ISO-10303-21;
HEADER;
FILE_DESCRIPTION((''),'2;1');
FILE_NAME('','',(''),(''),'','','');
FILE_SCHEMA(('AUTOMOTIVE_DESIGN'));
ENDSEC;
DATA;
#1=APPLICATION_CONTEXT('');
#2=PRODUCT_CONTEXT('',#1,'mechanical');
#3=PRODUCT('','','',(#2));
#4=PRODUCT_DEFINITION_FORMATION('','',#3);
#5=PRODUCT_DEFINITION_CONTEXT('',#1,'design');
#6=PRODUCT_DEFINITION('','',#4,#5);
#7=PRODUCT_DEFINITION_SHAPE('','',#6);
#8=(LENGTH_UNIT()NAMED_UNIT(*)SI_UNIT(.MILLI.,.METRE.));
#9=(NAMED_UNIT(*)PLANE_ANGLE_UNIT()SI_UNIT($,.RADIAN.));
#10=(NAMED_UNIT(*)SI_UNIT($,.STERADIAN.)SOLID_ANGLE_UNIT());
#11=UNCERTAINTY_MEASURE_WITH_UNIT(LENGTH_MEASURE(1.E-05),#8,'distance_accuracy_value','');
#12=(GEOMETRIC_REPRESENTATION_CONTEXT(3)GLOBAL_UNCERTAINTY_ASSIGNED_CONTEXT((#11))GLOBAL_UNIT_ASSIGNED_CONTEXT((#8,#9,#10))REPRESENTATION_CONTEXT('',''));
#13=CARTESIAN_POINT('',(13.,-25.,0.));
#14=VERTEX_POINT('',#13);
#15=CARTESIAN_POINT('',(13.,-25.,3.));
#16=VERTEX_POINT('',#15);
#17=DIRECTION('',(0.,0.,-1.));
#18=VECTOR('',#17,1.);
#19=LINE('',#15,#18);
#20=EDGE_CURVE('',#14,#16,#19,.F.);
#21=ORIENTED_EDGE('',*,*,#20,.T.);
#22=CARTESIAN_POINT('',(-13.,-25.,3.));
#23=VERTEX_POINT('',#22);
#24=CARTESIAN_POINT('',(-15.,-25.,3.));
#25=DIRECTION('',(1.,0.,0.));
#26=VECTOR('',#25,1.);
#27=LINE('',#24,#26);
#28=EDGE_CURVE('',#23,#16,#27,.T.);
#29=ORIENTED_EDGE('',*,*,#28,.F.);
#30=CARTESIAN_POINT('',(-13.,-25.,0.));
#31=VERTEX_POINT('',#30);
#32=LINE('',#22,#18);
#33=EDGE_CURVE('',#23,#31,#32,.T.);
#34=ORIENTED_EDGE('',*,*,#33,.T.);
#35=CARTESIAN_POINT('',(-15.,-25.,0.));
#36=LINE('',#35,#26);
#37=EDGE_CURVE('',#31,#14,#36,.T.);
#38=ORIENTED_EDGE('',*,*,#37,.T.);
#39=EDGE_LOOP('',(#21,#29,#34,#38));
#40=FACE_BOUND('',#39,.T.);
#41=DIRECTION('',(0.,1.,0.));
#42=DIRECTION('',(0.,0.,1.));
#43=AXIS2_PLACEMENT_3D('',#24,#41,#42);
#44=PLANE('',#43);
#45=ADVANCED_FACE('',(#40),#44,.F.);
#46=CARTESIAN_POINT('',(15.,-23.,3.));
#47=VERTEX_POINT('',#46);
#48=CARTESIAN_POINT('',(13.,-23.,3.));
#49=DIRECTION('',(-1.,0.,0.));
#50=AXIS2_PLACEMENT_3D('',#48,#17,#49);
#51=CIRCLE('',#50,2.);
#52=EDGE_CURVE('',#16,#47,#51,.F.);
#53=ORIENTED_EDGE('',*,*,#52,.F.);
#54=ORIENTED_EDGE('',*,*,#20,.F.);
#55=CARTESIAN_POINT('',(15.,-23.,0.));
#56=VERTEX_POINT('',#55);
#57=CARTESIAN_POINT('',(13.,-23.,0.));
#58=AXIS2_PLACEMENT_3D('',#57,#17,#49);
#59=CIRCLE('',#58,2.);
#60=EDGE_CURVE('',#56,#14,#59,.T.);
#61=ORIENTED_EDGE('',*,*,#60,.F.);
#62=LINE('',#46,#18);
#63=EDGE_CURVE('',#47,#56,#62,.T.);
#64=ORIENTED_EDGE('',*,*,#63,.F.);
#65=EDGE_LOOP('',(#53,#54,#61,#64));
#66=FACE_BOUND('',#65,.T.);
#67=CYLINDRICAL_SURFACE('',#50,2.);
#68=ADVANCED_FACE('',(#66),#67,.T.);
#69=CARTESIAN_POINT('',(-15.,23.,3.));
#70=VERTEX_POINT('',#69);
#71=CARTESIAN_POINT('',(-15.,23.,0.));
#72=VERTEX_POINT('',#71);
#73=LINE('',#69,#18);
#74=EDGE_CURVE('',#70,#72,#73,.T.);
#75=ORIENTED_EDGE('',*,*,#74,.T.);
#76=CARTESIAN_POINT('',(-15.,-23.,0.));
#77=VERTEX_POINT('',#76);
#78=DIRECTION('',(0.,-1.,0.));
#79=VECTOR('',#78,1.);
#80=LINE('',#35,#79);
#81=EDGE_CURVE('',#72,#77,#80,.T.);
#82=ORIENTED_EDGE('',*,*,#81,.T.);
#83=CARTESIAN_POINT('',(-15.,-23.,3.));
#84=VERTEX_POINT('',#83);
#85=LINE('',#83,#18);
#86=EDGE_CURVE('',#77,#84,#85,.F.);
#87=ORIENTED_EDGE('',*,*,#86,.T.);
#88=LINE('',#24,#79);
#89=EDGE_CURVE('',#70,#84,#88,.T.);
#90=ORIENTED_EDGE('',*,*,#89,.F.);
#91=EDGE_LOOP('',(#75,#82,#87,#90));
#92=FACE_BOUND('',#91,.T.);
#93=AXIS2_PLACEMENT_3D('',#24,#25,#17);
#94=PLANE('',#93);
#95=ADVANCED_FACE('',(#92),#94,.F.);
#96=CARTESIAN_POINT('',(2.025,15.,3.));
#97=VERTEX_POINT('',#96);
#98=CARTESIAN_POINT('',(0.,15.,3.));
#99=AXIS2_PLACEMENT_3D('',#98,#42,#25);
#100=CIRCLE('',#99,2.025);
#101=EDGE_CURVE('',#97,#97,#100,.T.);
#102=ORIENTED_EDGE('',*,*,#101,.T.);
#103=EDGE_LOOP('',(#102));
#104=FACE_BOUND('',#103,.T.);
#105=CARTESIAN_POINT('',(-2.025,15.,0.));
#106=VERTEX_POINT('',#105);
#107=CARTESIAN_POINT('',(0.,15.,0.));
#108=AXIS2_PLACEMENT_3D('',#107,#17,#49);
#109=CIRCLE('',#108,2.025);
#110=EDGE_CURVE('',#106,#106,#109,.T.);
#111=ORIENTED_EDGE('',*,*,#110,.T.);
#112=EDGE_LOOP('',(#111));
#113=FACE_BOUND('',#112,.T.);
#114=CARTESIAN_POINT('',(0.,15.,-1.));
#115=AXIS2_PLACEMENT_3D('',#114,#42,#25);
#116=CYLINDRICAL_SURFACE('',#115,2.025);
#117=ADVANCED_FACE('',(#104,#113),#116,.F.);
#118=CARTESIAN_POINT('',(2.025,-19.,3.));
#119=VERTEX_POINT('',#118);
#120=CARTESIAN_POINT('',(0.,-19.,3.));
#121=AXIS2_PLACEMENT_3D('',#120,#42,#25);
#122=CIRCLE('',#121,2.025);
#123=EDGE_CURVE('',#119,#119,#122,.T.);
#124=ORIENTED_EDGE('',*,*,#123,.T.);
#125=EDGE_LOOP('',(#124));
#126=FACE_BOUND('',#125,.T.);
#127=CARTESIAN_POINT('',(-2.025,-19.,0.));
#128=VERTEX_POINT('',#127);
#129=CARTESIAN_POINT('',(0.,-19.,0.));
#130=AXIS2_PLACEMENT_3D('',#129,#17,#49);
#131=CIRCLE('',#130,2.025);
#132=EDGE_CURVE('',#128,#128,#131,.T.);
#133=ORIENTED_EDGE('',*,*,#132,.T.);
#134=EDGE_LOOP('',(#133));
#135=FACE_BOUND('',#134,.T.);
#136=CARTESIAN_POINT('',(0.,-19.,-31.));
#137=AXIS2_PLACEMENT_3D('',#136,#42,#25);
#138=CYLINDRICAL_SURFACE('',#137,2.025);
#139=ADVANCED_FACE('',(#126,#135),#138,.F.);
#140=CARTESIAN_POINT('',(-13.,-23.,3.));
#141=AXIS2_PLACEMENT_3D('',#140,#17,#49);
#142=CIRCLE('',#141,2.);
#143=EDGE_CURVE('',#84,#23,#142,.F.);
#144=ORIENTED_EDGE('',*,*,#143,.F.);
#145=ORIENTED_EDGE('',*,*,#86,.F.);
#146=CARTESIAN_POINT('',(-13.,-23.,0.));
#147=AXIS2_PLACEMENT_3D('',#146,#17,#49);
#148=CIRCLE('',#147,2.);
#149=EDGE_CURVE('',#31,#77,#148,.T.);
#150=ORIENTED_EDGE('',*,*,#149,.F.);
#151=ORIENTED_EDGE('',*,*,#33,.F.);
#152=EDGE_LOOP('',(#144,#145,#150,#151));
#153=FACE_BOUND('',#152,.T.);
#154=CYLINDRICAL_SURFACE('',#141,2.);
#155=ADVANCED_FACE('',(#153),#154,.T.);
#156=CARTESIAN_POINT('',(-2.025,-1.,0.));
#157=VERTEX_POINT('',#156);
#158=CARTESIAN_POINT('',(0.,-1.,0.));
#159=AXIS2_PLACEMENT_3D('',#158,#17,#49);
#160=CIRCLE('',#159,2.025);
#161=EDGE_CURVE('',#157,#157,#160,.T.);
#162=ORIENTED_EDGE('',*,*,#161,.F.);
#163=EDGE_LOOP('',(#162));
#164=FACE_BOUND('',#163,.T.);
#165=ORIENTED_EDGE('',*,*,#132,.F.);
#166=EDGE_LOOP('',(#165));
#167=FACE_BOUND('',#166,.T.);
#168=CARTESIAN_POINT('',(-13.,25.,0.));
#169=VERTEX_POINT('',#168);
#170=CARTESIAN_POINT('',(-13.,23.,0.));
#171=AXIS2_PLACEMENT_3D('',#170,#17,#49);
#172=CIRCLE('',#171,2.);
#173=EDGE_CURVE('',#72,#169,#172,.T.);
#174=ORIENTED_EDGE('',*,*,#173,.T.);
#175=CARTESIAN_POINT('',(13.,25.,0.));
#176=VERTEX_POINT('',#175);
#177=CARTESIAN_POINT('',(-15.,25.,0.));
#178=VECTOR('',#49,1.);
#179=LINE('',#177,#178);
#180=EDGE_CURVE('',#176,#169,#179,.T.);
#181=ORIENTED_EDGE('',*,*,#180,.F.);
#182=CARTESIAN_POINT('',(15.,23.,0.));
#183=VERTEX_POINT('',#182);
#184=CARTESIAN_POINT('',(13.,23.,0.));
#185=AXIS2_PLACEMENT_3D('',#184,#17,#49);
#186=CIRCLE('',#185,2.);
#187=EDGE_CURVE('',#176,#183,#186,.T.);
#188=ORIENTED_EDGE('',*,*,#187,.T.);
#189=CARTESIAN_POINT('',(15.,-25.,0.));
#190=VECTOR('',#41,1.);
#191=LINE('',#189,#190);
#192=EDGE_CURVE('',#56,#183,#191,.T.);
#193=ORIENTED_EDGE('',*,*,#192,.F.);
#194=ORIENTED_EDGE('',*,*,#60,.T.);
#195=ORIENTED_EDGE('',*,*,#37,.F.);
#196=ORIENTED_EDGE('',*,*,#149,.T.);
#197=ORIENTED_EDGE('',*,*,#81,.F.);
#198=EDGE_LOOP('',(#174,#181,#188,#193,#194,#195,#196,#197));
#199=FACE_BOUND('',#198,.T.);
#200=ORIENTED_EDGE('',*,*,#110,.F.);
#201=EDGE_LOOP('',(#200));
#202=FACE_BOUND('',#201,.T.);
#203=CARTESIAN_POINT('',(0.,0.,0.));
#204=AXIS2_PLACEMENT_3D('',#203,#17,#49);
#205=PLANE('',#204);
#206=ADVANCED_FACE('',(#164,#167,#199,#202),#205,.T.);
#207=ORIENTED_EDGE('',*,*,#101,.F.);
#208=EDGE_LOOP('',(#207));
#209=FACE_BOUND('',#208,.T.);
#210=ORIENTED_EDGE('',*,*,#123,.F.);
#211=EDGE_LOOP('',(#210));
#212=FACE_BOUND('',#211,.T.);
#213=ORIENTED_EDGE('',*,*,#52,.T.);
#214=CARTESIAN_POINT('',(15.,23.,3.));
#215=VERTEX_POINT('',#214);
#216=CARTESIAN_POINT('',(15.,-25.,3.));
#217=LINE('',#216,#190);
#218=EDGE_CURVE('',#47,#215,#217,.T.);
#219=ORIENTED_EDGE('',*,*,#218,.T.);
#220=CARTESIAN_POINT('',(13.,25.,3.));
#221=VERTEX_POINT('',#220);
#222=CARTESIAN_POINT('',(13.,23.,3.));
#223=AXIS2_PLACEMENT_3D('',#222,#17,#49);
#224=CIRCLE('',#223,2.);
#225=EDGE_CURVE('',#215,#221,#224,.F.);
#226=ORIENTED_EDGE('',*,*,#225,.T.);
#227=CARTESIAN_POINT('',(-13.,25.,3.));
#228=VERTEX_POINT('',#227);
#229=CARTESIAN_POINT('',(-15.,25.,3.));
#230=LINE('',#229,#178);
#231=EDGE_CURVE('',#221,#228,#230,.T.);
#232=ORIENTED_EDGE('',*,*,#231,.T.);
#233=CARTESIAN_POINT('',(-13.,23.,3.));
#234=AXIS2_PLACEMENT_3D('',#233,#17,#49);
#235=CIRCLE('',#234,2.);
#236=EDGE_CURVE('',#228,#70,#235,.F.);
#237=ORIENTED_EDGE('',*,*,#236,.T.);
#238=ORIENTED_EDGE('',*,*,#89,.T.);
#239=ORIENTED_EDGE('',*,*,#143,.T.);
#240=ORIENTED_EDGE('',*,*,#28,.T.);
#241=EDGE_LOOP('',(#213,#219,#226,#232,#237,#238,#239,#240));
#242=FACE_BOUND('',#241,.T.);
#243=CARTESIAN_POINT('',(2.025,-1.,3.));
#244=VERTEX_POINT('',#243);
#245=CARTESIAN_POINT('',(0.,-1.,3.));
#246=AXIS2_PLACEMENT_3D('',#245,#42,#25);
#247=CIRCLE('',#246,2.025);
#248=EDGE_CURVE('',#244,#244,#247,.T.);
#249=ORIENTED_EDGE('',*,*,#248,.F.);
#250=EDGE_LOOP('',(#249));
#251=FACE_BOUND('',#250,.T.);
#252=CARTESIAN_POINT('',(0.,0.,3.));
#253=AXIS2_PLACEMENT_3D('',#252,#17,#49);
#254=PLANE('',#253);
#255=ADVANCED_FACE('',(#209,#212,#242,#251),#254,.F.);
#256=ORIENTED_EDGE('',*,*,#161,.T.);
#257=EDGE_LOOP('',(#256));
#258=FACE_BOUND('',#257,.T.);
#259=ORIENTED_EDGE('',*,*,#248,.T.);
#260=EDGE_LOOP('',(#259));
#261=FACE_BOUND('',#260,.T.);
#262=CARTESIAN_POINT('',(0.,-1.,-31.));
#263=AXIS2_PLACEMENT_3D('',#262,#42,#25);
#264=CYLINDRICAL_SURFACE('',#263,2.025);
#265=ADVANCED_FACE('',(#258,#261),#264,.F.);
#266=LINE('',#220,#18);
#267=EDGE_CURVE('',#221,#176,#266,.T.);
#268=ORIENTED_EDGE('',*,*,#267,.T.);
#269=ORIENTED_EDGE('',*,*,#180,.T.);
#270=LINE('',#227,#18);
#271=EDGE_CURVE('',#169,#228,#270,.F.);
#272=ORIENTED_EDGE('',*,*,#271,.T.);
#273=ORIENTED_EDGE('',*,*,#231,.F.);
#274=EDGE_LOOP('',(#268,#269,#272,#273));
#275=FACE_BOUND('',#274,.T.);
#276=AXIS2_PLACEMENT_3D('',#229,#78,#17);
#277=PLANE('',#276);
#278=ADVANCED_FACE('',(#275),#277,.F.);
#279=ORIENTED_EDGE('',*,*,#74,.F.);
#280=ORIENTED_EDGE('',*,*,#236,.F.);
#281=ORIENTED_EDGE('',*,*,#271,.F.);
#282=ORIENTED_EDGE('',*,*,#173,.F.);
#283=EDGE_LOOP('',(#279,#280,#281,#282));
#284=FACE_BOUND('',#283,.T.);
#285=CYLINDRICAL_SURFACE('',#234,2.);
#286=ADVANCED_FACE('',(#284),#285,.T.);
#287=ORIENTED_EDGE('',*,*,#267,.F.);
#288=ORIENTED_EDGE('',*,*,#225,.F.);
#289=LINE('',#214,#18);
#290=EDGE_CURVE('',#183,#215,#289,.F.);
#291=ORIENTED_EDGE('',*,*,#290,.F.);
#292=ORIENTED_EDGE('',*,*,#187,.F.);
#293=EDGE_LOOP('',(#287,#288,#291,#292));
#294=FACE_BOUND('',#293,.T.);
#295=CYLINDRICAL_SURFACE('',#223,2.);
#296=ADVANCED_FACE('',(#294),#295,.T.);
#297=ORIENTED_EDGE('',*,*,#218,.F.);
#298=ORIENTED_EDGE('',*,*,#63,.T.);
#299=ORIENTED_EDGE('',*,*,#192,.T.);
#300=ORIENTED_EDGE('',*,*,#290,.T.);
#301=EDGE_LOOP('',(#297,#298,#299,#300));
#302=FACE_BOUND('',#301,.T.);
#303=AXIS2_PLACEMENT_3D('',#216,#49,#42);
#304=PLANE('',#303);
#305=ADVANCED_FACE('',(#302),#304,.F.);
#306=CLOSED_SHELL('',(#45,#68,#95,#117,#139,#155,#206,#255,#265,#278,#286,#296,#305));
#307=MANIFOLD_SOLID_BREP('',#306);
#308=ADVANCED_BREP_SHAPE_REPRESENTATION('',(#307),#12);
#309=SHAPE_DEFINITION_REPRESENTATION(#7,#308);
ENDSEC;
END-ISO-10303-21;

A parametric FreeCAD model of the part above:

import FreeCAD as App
import Part
import Sketcher


def edges_at(feature, points):
    """Names of the edges that pass closest to the given points."""
    edges = feature.Shape.Edges
    near = lambda p: min(range(len(edges)), key=lambda i: edges[i].distToShape(Part.Vertex(*p))[0])
    return sorted({f"Edge{near(p) + 1}" for p in points})


def add_polygon(sketch, points):
    """Adds a closed chain of lines whose ends are joined by coincident constraints."""
    first, n = sketch.GeometryCount, len(points)
    for a, b in zip(points, points[1:] + points[:1]):
        sketch.addGeometry(Part.LineSegment(App.Vector(*a, 0), App.Vector(*b, 0)), False)
    for i in range(n):
        sketch.addConstraint(Sketcher.Constraint("Coincident", first + i, 2, first + (i + 1) % n, 1))

doc = App.newDocument("Part")
body = doc.addObject("PartDesign::Body", "Body")

# Sketch on XY plane
sketch1 = body.newObject("Sketcher::SketchObject", "Sketch")
sketch1.AttachmentSupport = (doc.getObject("XY_Plane"), [""])
sketch1.MapMode = "FlatFace"
add_polygon(sketch1, [(-15, 25), (-15, -25), (15, -25), (15, 25)])  # lines 0-3
sketch1.addConstraint(Sketcher.Constraint("Vertical", 0))
sketch1.addConstraint(Sketcher.Constraint("Horizontal", 1))
sketch1.addConstraint(Sketcher.Constraint("Vertical", 2))
sketch1.addConstraint(Sketcher.Constraint("Horizontal", 3))
sketch1.addConstraint(Sketcher.Constraint("Symmetric", 0, 2, 2, 2, -1, 1))
sketch1.addConstraint(Sketcher.Constraint("DistanceX", 1, 1, 1, 2, 30.0))
sketch1.addConstraint(Sketcher.Constraint("DistanceY", 0, 2, 0, 1, 50.0))
pad1 = body.newObject("PartDesign::Pad", "Pad")
pad1.Profile = sketch1
pad1.Length = 3

# Sketch on XY plane
sketch2 = body.newObject("Sketcher::SketchObject", "Sketch001")
sketch2.AttachmentSupport = (doc.getObject("XY_Plane"), [""])
sketch2.MapMode = "FlatFace"
sketch2.AttachmentOffset = App.Placement(App.Vector(0, 0, 3), App.Rotation())
sketch2.addGeometry(Part.Circle(App.Vector(0, 15, 0), App.Vector(0, 0, 1), 2), False)
sketch2.addConstraint(Sketcher.Constraint("PointOnObject", 0, 3, -2))
sketch2.addConstraint(Sketcher.Constraint("Diameter", 0, 4.05))
sketch2.addConstraint(Sketcher.Constraint("DistanceY", -1, 1, 0, 3, 15.0))
pocket1 = body.newObject("PartDesign::Pocket", "Pocket")
pocket1.Profile = sketch2
pocket1.Length = 4

# Sketch on XY plane
sketch3 = body.newObject("Sketcher::SketchObject", "Sketch002")
sketch3.AttachmentSupport = (doc.getObject("XY_Plane"), [""])
sketch3.MapMode = "FlatFace"
sketch3.AttachmentOffset = App.Placement(App.Vector(0, 0, 3), App.Rotation())
sketch3.addGeometry(Part.Circle(App.Vector(0, -1, 0), App.Vector(0, 0, 1), 2), False)
sketch3.addGeometry(Part.Circle(App.Vector(0, -19, 0), App.Vector(0, 0, 1), 2), False)
sketch3.addConstraint(Sketcher.Constraint("Equal", 0, 1))
sketch3.addConstraint(Sketcher.Constraint("PointOnObject", 0, 3, -2))
sketch3.addConstraint(Sketcher.Constraint("PointOnObject", 1, 3, -2))
sketch3.addConstraint(Sketcher.Constraint("Diameter", 0, 4.05))
sketch3.addConstraint(Sketcher.Constraint("DistanceY", 0, 3, -1, 1, 1.0))
sketch3.addConstraint(Sketcher.Constraint("DistanceY", 1, 3, -1, 1, 19.0))
pocket2 = body.newObject("PartDesign::Pocket", "Pocket001")
pocket2.Profile = sketch3
pocket2.Length = 34
doc.recompute()

fillet = body.newObject("PartDesign::Fillet", "Fillet")
fillet.Base = (pocket2, edges_at(pocket2, [
    (15, -25, 1.5),
    (-15, -25, 1.5),
    (-15, 25, 1.5),
    (15, 25, 1.5),
]))
fillet.Radius = 2

doc.recompute()
